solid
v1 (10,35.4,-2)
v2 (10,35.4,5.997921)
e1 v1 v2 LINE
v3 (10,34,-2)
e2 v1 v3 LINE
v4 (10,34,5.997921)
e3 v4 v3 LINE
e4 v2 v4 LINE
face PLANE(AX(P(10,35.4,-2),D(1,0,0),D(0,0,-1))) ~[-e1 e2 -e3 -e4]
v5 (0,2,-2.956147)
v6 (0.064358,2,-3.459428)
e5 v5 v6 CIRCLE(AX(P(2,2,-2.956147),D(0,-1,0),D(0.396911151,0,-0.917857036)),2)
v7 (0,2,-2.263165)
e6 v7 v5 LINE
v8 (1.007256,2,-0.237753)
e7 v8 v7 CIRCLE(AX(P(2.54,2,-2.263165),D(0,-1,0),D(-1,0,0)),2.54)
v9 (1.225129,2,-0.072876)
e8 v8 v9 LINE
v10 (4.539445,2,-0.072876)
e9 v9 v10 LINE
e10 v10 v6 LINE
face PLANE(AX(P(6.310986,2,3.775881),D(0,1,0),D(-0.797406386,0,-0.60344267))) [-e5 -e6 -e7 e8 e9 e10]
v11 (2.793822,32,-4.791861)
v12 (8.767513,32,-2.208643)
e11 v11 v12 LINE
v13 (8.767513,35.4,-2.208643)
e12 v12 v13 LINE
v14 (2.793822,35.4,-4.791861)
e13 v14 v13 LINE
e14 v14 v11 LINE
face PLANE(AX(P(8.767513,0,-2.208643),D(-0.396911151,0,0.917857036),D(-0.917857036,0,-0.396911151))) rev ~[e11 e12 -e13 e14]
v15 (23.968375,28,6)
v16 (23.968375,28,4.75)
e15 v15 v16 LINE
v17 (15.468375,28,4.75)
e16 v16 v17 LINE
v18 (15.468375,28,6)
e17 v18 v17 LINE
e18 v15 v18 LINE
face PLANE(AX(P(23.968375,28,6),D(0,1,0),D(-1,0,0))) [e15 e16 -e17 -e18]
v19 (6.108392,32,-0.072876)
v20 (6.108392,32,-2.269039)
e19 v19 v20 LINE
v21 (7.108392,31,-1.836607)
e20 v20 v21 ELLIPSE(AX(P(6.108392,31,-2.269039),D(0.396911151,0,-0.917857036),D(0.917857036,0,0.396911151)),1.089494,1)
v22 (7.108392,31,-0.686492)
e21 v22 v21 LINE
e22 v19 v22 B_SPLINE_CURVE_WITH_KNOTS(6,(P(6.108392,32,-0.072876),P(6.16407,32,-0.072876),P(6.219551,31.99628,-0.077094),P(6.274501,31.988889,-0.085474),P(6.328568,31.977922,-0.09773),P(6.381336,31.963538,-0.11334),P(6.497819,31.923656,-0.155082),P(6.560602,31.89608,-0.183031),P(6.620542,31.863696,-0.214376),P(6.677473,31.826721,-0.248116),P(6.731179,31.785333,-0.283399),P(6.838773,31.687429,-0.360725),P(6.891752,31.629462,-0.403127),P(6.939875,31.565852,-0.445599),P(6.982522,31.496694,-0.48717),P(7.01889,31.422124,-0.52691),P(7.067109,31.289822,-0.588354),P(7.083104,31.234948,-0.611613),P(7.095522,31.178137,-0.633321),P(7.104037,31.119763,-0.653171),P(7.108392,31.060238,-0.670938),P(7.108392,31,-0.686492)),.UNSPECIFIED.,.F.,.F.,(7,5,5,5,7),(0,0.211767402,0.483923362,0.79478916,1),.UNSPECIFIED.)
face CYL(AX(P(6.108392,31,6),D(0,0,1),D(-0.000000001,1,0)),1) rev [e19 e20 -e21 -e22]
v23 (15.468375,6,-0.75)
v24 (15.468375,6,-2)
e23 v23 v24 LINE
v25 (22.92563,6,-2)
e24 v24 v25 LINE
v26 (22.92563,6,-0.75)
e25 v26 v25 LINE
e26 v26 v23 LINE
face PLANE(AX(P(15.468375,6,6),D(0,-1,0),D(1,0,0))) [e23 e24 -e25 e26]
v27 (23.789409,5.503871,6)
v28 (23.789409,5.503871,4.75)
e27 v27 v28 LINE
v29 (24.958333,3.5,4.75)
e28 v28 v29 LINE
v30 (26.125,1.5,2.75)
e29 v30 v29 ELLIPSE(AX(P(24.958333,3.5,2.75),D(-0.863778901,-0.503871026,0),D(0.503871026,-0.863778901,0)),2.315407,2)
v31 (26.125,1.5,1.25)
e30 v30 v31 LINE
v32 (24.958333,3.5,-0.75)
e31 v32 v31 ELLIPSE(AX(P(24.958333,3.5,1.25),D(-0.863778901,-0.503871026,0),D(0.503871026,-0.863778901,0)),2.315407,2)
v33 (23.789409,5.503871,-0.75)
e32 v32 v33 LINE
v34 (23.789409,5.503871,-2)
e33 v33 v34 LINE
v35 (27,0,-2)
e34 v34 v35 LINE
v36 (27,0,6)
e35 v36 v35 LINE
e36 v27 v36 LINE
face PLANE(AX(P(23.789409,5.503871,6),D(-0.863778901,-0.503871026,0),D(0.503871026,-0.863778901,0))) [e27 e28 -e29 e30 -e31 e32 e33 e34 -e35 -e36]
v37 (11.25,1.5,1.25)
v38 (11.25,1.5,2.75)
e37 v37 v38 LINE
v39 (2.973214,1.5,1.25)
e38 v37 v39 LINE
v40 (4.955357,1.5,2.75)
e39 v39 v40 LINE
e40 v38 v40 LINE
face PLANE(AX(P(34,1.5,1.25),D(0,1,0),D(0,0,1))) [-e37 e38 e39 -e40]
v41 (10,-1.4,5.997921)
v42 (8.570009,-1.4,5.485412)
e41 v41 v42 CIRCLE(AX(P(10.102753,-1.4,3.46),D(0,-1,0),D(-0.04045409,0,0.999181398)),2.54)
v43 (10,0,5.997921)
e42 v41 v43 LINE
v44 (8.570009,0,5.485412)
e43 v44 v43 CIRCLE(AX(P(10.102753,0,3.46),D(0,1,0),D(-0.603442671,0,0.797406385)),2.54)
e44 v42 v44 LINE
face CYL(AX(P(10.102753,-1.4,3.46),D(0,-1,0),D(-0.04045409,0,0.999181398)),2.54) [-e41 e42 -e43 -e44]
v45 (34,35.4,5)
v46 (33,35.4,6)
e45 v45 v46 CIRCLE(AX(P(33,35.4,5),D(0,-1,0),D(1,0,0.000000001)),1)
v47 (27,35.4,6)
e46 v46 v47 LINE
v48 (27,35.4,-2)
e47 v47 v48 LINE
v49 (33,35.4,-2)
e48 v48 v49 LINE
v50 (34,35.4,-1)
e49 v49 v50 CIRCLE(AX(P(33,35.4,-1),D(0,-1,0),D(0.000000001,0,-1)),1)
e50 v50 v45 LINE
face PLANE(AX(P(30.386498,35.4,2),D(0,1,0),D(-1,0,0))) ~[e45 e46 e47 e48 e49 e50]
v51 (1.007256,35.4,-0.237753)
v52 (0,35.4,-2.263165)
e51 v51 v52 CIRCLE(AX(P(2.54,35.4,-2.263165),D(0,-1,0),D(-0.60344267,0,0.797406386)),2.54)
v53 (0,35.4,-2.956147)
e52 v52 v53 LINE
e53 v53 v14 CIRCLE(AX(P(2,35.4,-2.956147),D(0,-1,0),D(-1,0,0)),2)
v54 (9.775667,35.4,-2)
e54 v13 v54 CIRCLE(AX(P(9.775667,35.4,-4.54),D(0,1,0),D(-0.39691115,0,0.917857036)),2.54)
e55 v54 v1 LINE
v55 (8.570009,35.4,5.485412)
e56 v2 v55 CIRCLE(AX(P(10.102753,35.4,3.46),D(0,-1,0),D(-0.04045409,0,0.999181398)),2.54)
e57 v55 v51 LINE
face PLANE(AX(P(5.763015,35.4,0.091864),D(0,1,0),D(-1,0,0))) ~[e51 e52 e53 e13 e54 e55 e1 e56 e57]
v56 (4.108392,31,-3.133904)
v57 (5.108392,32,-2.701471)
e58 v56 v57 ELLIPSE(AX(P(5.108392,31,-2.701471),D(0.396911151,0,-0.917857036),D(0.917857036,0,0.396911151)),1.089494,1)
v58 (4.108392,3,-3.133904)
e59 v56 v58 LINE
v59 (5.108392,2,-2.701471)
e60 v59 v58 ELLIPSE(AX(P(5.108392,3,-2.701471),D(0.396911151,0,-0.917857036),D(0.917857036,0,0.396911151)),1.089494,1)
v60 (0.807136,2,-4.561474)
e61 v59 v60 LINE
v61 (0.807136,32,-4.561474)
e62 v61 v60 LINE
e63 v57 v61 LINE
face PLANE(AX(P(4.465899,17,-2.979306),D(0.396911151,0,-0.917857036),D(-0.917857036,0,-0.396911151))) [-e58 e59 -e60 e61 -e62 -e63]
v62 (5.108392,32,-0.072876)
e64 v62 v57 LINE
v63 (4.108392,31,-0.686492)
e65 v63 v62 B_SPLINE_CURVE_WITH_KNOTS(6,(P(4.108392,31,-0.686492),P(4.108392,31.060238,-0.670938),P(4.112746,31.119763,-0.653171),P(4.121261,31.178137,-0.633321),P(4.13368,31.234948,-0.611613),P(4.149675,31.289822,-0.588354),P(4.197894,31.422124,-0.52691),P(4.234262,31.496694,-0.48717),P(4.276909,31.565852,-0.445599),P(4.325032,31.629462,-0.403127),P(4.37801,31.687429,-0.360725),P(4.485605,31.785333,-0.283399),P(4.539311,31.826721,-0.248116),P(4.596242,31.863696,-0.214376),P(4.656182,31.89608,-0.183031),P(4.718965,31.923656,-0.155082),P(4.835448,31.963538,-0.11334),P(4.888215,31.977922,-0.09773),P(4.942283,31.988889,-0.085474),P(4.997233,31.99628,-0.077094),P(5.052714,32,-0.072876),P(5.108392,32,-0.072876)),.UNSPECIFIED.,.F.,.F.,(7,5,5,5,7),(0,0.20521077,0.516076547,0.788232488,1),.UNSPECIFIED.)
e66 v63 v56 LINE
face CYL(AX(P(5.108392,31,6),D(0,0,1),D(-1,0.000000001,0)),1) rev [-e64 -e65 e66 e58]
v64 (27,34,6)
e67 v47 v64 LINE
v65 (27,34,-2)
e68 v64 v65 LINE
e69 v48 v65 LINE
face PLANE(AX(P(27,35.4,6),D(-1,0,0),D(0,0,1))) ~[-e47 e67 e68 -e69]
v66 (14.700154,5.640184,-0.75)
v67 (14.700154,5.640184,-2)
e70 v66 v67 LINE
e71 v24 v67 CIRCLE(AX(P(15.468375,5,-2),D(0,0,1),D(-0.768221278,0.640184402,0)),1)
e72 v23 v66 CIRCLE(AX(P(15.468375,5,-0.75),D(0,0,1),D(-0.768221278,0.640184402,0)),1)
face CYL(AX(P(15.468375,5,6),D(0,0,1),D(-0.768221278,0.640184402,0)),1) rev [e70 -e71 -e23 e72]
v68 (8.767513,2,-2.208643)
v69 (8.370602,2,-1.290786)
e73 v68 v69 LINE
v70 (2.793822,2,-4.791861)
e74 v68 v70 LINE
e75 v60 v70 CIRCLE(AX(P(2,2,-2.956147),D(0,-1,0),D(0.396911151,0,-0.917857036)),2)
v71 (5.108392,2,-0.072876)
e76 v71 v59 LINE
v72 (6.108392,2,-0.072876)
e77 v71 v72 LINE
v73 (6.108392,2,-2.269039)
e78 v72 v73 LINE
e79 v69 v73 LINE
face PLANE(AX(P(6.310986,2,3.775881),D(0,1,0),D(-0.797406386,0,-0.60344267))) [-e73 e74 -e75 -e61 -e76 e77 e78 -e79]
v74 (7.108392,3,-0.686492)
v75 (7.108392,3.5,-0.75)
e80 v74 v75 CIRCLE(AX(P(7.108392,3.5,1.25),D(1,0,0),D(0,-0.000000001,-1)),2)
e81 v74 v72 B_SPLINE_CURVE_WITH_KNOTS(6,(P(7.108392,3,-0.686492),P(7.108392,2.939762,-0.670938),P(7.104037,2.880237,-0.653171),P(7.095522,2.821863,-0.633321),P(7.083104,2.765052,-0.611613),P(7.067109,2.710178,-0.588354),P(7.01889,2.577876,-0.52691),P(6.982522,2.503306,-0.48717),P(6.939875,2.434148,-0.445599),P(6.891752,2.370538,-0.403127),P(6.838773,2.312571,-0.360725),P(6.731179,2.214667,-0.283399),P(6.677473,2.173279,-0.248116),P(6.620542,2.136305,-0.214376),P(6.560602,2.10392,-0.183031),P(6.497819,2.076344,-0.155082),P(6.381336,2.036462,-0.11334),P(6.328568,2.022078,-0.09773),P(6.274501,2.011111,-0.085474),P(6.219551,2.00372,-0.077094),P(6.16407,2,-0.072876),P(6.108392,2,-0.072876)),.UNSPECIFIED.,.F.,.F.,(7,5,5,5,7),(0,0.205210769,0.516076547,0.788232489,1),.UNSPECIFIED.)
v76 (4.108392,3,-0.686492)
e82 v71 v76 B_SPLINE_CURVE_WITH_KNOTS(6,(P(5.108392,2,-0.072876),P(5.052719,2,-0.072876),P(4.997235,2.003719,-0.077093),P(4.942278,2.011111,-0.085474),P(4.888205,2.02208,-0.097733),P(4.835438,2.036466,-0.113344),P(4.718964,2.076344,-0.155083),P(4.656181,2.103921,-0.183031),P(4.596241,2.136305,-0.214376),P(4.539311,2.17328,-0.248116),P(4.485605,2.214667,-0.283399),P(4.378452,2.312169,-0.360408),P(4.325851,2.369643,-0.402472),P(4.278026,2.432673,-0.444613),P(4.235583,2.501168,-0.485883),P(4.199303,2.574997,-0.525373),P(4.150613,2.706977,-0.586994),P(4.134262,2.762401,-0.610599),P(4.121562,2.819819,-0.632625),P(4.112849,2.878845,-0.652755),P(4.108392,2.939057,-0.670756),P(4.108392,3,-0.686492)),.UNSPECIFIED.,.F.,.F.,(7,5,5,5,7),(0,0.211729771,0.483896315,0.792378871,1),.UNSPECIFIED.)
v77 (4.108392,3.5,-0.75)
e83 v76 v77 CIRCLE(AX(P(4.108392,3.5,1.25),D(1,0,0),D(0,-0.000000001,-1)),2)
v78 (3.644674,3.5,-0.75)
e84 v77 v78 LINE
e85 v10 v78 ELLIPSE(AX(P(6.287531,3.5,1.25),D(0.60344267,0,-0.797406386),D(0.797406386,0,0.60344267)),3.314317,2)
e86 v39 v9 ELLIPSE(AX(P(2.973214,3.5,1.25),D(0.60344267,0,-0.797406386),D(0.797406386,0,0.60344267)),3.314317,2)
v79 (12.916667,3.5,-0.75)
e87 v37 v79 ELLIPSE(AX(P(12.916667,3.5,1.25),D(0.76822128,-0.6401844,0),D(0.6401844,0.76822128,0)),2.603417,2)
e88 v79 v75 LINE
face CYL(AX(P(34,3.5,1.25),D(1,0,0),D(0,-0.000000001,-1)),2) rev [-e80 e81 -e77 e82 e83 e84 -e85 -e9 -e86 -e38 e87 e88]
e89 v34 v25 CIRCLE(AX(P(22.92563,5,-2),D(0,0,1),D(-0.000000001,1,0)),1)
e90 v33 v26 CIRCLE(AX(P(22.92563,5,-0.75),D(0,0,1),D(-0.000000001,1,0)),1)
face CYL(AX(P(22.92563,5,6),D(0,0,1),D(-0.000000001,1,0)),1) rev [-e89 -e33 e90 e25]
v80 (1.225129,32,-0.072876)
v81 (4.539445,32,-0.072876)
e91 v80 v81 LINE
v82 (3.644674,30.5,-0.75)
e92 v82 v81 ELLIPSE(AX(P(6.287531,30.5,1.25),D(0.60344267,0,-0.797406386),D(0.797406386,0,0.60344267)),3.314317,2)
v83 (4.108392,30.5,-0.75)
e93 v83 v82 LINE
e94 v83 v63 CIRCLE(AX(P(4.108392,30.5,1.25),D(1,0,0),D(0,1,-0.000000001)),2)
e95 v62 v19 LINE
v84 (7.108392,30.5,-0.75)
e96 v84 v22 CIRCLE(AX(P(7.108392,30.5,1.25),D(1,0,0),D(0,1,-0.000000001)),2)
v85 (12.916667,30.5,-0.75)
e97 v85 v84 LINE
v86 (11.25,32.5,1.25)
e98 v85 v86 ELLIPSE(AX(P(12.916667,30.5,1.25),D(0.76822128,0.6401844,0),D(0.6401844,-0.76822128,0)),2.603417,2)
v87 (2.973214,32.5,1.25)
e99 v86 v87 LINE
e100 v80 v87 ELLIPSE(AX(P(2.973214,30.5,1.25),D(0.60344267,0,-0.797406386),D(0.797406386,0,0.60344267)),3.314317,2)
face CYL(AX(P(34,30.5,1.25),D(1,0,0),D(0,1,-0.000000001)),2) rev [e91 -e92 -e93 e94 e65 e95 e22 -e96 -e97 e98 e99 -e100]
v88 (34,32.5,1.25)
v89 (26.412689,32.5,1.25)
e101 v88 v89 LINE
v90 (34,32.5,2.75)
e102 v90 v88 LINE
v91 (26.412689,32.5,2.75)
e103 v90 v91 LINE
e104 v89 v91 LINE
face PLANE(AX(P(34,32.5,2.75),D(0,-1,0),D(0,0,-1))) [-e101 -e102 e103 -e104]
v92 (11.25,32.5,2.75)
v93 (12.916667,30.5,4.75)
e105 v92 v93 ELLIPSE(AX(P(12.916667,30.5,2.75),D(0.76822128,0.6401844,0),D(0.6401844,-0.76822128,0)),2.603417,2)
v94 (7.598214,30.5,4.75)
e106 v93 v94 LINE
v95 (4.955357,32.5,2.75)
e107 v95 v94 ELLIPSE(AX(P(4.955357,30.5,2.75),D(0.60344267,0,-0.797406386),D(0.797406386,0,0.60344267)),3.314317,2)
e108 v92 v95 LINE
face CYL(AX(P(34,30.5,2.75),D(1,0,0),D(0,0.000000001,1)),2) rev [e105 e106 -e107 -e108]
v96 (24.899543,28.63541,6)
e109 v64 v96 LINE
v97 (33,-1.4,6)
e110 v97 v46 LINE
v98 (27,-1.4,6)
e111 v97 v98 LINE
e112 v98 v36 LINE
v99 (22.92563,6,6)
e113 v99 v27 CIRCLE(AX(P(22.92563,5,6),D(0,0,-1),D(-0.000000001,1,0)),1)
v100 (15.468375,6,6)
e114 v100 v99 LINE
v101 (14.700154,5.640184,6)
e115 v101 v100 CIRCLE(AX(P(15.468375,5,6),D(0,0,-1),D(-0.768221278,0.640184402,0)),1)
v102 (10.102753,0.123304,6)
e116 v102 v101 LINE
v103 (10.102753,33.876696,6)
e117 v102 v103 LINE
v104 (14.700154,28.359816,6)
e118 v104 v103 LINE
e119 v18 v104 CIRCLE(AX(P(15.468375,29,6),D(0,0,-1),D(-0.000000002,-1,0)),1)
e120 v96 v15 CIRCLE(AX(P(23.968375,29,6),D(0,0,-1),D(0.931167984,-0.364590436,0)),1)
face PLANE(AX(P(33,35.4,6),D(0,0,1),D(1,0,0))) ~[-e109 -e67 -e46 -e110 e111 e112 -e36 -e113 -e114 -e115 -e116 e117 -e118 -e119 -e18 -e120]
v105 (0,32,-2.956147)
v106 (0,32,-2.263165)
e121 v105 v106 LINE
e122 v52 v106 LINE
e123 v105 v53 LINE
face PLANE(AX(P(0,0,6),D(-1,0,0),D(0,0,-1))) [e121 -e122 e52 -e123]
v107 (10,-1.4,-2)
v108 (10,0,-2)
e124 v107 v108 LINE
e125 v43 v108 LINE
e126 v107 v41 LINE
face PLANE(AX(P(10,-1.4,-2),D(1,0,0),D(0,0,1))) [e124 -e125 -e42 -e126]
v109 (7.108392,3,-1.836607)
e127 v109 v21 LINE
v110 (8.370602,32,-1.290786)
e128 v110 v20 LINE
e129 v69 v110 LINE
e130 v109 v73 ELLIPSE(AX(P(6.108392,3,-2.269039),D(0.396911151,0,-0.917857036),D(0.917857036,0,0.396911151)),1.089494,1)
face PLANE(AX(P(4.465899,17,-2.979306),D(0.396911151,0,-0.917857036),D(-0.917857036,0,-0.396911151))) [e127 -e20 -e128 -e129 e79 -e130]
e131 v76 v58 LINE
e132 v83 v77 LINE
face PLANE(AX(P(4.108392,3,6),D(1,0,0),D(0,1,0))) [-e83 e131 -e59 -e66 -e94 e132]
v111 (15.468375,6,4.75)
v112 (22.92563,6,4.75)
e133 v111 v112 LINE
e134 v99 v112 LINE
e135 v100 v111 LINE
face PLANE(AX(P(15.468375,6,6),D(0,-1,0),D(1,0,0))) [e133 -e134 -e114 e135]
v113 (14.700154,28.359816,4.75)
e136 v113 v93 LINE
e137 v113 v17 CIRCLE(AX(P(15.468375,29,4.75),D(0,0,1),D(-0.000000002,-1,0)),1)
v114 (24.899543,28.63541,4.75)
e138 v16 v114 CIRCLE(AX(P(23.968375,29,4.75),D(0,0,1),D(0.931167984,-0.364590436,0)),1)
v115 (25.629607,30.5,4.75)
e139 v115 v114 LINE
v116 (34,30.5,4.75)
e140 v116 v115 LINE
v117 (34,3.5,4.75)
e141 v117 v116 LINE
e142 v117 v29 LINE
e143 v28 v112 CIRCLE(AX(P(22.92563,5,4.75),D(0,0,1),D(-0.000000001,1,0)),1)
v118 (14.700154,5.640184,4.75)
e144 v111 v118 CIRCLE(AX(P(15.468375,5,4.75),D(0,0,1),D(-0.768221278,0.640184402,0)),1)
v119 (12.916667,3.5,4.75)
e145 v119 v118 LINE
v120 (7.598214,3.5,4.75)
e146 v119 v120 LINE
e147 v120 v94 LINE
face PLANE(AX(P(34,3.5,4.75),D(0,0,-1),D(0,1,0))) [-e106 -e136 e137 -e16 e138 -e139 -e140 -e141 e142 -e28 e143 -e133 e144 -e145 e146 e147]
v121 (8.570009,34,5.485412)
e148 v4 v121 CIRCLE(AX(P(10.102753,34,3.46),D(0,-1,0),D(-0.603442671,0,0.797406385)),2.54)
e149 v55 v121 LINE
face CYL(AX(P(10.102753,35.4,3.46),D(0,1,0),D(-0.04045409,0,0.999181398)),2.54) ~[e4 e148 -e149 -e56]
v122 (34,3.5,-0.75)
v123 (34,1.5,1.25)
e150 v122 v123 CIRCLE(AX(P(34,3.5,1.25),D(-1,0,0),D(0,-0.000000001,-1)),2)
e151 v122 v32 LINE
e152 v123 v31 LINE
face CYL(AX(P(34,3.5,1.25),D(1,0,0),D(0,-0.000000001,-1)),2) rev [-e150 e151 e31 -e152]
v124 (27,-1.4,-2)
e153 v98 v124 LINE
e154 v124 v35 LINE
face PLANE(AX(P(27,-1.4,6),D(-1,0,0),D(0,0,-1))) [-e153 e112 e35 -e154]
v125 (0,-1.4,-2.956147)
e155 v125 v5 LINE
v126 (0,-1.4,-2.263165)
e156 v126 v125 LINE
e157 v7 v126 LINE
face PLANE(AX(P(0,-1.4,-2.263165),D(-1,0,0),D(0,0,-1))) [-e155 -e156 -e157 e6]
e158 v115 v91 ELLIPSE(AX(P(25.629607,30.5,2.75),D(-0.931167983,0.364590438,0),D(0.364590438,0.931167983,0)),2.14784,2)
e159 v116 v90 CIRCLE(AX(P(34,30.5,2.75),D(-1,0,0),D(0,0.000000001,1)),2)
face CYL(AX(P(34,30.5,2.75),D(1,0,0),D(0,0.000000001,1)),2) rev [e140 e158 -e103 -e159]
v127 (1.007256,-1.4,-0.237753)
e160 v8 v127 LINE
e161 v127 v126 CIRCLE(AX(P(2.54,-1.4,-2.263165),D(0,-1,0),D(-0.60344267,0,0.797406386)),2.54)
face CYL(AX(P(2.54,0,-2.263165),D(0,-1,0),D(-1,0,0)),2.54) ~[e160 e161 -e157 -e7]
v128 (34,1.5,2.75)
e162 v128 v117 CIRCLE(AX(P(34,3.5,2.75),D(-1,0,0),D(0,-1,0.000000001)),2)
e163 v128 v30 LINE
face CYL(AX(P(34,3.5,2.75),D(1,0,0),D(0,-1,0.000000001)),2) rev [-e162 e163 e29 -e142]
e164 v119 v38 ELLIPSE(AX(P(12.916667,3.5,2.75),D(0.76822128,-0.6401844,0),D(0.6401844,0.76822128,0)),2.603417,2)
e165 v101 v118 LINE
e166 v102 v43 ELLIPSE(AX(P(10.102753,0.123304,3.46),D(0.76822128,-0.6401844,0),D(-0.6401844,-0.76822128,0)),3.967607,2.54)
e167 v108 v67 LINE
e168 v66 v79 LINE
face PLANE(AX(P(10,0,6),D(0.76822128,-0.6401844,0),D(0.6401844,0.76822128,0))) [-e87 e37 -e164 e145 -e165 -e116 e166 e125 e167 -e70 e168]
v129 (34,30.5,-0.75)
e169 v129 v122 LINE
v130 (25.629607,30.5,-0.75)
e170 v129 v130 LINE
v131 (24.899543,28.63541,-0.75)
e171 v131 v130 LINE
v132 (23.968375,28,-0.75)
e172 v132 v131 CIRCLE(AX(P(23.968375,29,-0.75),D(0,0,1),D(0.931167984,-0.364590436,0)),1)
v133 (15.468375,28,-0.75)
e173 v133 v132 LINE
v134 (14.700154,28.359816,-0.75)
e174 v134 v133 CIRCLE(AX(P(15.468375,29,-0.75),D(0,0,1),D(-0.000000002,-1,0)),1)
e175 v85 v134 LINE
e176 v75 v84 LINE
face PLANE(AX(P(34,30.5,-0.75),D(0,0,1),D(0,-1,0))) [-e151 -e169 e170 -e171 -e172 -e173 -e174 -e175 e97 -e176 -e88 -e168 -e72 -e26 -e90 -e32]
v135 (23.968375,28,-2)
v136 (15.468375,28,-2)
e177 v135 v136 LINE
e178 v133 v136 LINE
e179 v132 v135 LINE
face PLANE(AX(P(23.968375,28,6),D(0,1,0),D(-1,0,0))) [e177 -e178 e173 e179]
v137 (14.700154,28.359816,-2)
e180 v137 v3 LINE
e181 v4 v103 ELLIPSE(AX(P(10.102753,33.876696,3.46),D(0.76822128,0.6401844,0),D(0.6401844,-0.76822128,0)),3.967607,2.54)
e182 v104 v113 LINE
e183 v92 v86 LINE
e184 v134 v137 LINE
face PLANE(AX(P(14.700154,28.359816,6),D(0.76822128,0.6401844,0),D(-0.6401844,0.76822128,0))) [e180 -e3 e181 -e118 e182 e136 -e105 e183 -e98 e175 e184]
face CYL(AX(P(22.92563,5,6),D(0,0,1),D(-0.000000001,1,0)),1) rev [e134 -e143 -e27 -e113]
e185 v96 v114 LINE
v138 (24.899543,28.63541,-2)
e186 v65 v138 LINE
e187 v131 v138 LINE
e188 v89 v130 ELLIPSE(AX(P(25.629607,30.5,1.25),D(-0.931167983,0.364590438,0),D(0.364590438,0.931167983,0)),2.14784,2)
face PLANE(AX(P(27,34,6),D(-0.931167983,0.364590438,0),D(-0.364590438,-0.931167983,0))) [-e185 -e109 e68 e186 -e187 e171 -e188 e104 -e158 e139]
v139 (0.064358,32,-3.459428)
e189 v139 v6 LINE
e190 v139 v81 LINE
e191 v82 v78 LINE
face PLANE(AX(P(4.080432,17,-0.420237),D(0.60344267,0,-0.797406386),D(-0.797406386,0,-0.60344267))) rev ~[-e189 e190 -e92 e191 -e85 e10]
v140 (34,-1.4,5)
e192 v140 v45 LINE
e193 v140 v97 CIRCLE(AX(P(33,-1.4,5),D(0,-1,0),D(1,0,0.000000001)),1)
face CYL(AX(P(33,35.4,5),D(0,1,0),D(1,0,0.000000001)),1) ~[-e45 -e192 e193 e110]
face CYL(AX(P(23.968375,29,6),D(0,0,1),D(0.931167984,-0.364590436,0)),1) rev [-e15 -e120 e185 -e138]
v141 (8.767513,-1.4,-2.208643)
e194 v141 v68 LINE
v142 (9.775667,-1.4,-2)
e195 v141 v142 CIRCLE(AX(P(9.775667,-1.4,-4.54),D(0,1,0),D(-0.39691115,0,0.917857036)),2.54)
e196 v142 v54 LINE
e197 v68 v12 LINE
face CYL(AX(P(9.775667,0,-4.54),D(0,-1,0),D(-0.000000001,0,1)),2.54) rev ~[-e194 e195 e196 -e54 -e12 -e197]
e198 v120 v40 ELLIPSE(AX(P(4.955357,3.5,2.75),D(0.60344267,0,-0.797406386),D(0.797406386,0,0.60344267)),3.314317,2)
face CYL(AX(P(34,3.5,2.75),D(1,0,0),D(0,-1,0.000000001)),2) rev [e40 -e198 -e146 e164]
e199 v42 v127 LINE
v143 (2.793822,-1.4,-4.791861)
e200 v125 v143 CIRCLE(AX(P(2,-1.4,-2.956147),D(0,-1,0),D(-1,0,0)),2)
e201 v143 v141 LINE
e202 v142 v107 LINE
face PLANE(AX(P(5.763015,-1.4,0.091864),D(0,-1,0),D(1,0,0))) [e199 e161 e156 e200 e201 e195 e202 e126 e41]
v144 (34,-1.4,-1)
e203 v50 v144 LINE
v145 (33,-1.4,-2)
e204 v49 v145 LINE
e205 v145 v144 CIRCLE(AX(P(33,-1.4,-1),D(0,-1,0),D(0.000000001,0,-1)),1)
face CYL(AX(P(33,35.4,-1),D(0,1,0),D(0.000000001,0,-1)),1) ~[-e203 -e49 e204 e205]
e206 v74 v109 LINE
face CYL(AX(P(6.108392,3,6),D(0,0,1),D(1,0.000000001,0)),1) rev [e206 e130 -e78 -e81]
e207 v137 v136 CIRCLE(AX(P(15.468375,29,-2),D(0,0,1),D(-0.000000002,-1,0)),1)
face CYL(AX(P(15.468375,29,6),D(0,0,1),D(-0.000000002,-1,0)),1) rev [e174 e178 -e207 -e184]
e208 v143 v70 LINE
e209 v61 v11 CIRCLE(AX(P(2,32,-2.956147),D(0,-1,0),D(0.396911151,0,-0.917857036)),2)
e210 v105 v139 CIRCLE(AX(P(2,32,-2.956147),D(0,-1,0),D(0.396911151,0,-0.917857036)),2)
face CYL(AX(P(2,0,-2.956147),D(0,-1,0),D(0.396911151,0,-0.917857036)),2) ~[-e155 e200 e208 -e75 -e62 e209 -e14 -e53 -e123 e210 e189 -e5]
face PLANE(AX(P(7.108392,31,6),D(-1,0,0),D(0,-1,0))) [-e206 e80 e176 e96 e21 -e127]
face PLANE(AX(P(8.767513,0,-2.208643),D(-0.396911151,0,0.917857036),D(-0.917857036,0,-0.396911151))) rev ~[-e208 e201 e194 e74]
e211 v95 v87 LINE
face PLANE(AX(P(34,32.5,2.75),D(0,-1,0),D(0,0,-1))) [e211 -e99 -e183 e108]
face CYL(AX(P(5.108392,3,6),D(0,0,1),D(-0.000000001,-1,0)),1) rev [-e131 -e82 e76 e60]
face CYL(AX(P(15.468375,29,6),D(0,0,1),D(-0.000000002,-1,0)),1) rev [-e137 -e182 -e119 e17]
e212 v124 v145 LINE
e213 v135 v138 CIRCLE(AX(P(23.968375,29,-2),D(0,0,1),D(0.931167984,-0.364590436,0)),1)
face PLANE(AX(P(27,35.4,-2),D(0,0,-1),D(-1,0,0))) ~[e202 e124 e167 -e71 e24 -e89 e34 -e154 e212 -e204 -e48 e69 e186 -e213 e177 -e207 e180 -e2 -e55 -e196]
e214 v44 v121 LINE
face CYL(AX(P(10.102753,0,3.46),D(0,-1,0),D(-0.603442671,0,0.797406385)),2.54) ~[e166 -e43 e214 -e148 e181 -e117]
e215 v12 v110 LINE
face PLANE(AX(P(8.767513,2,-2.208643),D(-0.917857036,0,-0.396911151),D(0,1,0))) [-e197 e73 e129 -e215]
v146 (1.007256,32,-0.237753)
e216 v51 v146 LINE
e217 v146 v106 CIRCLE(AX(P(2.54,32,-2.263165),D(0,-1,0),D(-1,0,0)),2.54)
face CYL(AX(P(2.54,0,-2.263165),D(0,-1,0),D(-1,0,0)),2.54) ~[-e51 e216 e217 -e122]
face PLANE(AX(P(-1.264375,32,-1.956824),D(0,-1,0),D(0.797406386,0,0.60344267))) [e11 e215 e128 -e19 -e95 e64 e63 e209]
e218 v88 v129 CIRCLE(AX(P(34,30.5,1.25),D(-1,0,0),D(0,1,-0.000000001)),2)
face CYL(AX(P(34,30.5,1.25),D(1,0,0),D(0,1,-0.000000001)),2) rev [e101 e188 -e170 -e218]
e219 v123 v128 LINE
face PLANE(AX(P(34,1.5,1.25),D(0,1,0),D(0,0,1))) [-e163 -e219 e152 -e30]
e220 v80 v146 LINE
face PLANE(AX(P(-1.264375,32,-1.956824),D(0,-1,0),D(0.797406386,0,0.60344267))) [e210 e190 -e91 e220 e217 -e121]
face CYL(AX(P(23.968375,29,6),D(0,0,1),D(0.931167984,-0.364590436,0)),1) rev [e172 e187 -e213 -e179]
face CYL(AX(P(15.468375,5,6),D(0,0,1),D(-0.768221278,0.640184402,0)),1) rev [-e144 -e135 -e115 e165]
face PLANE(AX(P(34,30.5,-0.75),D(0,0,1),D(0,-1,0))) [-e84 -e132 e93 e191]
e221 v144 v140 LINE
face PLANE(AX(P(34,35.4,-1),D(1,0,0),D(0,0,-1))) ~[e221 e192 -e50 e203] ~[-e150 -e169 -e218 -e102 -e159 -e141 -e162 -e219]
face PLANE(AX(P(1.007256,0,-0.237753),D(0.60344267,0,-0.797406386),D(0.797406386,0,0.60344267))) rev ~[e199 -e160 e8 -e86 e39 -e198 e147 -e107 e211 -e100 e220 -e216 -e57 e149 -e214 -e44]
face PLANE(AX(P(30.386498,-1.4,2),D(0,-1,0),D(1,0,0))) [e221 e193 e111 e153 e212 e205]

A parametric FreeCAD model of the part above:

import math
import FreeCAD as App
import Part
import Sketcher
from FreeCAD import Vector
Q = App.Units.Quantity

doc = App.newDocument("Part")
body = doc.addObject("PartDesign::Body", "Body")

sketch1 = body.newObject("Sketcher::SketchObject", "Sketch")
sketch1.AttachmentSupport = (doc.getObject("XZ_Plane"), [""])
sketch1.MapMode = "FlatFace"
sketch1.addGeometry([
    Part.LineSegment(Vector(0, -6, 0), Vector(0, 6, 0)),
    Part.LineSegment(Vector(0, 6, 0), Vector(34, 6, 0)),
    Part.LineSegment(Vector(34, 6, 0), Vector(34, -6, 0)),
    Part.LineSegment(Vector(34, -6, 0), Vector(0, -6, 0)),
], False)
sketch1.addConstraint([
    Sketcher.Constraint("Coincident", 0, 2, 1, 1),
    Sketcher.Constraint("Coincident", 1, 2, 2, 1),
    Sketcher.Constraint("Coincident", 2, 2, 3, 1),
    Sketcher.Constraint("Coincident", 3, 2, 0, 1),
    Sketcher.Constraint("Vertical", 0),
    Sketcher.Constraint("Horizontal", 1),
    Sketcher.Constraint("Vertical", 2),
    Sketcher.Constraint("Horizontal", 3),
    Sketcher.Constraint("Symmetric", 0, 2, 3, 2, -1, 1),
    Sketcher.Constraint("DistanceX", 1, 1, 1, 2, Q("34 mm")),
    Sketcher.Constraint("DistanceY", 0, 1, 0, 2, Q("12 mm")),
])
pad1 = body.newObject("PartDesign::Pad", "Pad")
pad1.Profile = sketch1
pad1.Length = 34
pad1.Reversed = True

sketch2 = body.newObject("Sketcher::SketchObject", "Sketch001")
sketch2.AttachmentSupport = (doc.getObject("XZ_Plane"), [""])
sketch2.MapMode = "FlatFace"
sketch2.addGeometry([
    Part.LineSegment(Vector(10.8, -9.6, 0), Vector(33, -9.6, 0)),
    Part.ArcOfCircle(Part.Circle(Vector(33, -1, 0), Vector(0, 0, 1), 8.6), math.radians(-90), math.radians(0)),
    Part.LineSegment(Vector(41.6, -1, 0), Vector(41.6, 5, 0)),
    Part.ArcOfCircle(Part.Circle(Vector(33, 5, 0), Vector(0, 0, 1), 8.6), math.radians(0), math.radians(90)),
    Part.LineSegment(Vector(33, 13.6, 0), Vector(10.1, 13.6, 0)),
    Part.ArcOfCircle(Part.Circle(Vector(10.1, 3.5, 0), Vector(0, 0, 1), 10.2), math.radians(90), math.radians(127)),
    Part.LineSegment(Vector(4, 11.6, 0), Vector(-3.6, 5.8, 0)),
    Part.ArcOfCircle(Part.Circle(Vector(2.5, -2.3, 0), Vector(0, 0, 1), 10.2), math.radians(127), math.radians(180)),
    Part.LineSegment(Vector(-7.6, -2.3, 0), Vector(-7.6, -3, 0)),
    Part.ArcOfCircle(Part.Circle(Vector(2, -3, 0), Vector(0, 0, 1), 9.6), math.radians(180), math.radians(293)),
    Part.LineSegment(Vector(5.8, -11.8, 0), Vector(10.8, -9.6, 0)),
    Part.LineSegment(Vector(33, -2, 0), Vector(9.8, -2, 0)),
    Part.ArcOfCircle(Part.Circle(Vector(9.8, -4.5, 0), Vector(0, 0, 1), 2.5), math.radians(90), math.radians(113)),
    Part.LineSegment(Vector(8.8, -2.2, 0), Vector(2.8, -4.8, 0)),
    Part.ArcOfCircle(Part.Circle(Vector(2, -3, 0), Vector(0, 0, 1), 2), math.radians(180), math.radians(293)),
    Part.LineSegment(Vector(0, -3, 0), Vector(0, -2.3, 0)),
    Part.ArcOfCircle(Part.Circle(Vector(2.5, -2.3, 0), Vector(0, 0, 1), 2.5), math.radians(127), math.radians(180)),
    Part.LineSegment(Vector(1, -0.2, 0), Vector(8.6, 5.5, 0)),
    Part.ArcOfCircle(Part.Circle(Vector(10.1, 3.5, 0), Vector(0, 0, 1), 2.5), math.radians(90), math.radians(127)),
    Part.LineSegment(Vector(10.1, 6, 0), Vector(33, 6, 0)),
    Part.ArcOfCircle(Part.Circle(Vector(33, 5, 0), Vector(0, 0, 1), 1), math.radians(0), math.radians(90)),
    Part.LineSegment(Vector(34, 5, 0), Vector(34, -1, 0)),
    Part.ArcOfCircle(Part.Circle(Vector(33, -1, 0), Vector(0, 0, 1), 1), math.radians(-90), math.radians(0)),
], False)
sketch2.addConstraint([
    Sketcher.Constraint("Tangent", 0, 2, 1, 1),
    Sketcher.Constraint("Tangent", 1, 2, 2, 1),
    Sketcher.Constraint("Tangent", 2, 2, 3, 1),
    Sketcher.Constraint("Tangent", 3, 2, 4, 1),
    Sketcher.Constraint("Tangent", 4, 2, 5, 1),
    Sketcher.Constraint("Tangent", 5, 2, 6, 1),
    Sketcher.Constraint("Tangent", 6, 2, 7, 1),
    Sketcher.Constraint("Tangent", 7, 2, 8, 1),
    Sketcher.Constraint("Tangent", 8, 2, 9, 1),
    Sketcher.Constraint("Tangent", 9, 2, 10, 1),
    Sketcher.Constraint("Coincident", 10, 2, 0, 1),
    Sketcher.Constraint("Tangent", 11, 2, 12, 1),
    Sketcher.Constraint("Tangent", 12, 2, 13, 1),
    Sketcher.Constraint("Tangent", 13, 2, 14, 2),
    Sketcher.Constraint("Tangent", 14, 1, 15, 1),
    Sketcher.Constraint("Tangent", 15, 2, 16, 2),
    Sketcher.Constraint("Tangent", 16, 1, 17, 1),
    Sketcher.Constraint("Tangent", 17, 2, 18, 2),
    Sketcher.Constraint("Tangent", 18, 1, 19, 1),
    Sketcher.Constraint("Tangent", 19, 2, 20, 2),
    Sketcher.Constraint("Tangent", 20, 1, 21, 1),
    Sketcher.Constraint("Tangent", 21, 2, 22, 2),
    Sketcher.Constraint("Tangent", 22, 1, 11, 1),
    Sketcher.Constraint("Horizontal", 0),
    Sketcher.Constraint("Vertical", 2),
    Sketcher.Constraint("Horizontal", 4),
    Sketcher.Constraint("Vertical", 8),
    Sketcher.Constraint("Horizontal", 11),
    Sketcher.Constraint("Vertical", 15),
    Sketcher.Constraint("Horizontal", 19),
    Sketcher.Constraint("Vertical", 21),
    Sketcher.Constraint("Coincident", 14, 3, 9, 3),
    Sketcher.Constraint("Coincident", 16, 3, 7, 3),
    Sketcher.Constraint("Coincident", 18, 3, 5, 3),
    Sketcher.Constraint("Coincident", 20, 3, 3, 3),
    Sketcher.Constraint("Coincident", 22, 3, 1, 3),
    Sketcher.Constraint("Equal", 1, 3),
    Sketcher.Constraint("Equal", 5, 7),
    Sketcher.Constraint("Equal", 12, 16),
    Sketcher.Constraint("Equal", 16, 18),
    Sketcher.Constraint("PointOnObject", 14, 1, -2),
    Sketcher.Constraint("Parallel", 10, 13),
    Sketcher.Constraint("Radius", 14, Q("2 mm")),
    Sketcher.Constraint("Radius", 20, Q("1 mm")),
    Sketcher.Constraint("DistanceY", 2, 1, 2, 2, Q("6 mm")),
    Sketcher.Constraint("Radius", 1, Q("8.62 mm")),
    Sketcher.Constraint("Radius", 5, Q("10.16 mm")),
    Sketcher.Constraint("DistanceX", -1, 1, 1, 3, Q("33 mm")),
    Sketcher.Constraint("DistanceY", 1, 3, -1, 1, Q("1 mm")),
    Sketcher.Constraint("DistanceX", 0, 1, 0, 2, Q("22.172999 mm")),
    Sketcher.Constraint("Distance", 13, Q("6.508302 mm")),
    Sketcher.Constraint("DistanceY", 8, 2, 8, 1, Q("0.692982 mm")),
    Sketcher.Constraint("Distance", 6, Q("9.48419 mm")),
])
pocket1 = body.newObject("PartDesign::Pocket", "Pocket")
pocket1.Profile = sketch2
pocket1.Type = "ThroughAll"

sketch3 = body.newObject("Sketcher::SketchObject", "Sketch002")
sketch3.Placement = App.Placement(Vector(0.481189, 0, -0.635857), App.Rotation(Vector(0.797406386, 0, 0.60344267), Vector(0, 1, 0), Vector(-0.60344267, 0, 0.797406386), "ZXY"))
sketch3.addGeometry([
    Part.LineSegment(Vector(7.3, 32, 0), Vector(-2.2, 32, 0)),
    Part.LineSegment(Vector(-2.2, 32, 0), Vector(-2.2, 2, 0)),
    Part.LineSegment(Vector(-2.2, 2, 0), Vector(7.3, 2, 0)),
    Part.ArcOfCircle(Part.Circle(Vector(7.3, 3, 0), Vector(0, 0, 1), 1), math.radians(-90), math.radians(0)),
    Part.LineSegment(Vector(8.3, 3, 0), Vector(8.3, 31, 0)),
    Part.ArcOfCircle(Part.Circle(Vector(7.3, 31, 0), Vector(0, 0, 1), 1), math.radians(0), math.radians(90)),
], False)
sketch3.addConstraint([
    Sketcher.Constraint("Coincident", 0, 2, 1, 1),
    Sketcher.Constraint("Coincident", 1, 2, 2, 1),
    Sketcher.Constraint("Tangent", 2, 2, 3, 1),
    Sketcher.Constraint("Tangent", 3, 2, 4, 1),
    Sketcher.Constraint("Tangent", 4, 2, 5, 1),
    Sketcher.Constraint("Tangent", 5, 2, 0, 1),
    Sketcher.Constraint("Horizontal", 0),
    Sketcher.Constraint("Vertical", 1),
    Sketcher.Constraint("Horizontal", 2),
    Sketcher.Constraint("Vertical", 4),
    Sketcher.Constraint("Equal", 3, 5),
    Sketcher.Constraint("Radius", 3, Q("1 mm")),
    Sketcher.Constraint("DistanceY", 1, 2, 1, 1, Q("30 mm")),
    Sketcher.Constraint("DistanceX", 0, 2, 0, 1, Q("9.5 mm")),
    Sketcher.Constraint("DistanceY", -1, 1, 3, 3, Q("3 mm")),
    Sketcher.Constraint("DistanceX", -1, 1, 3, 3, Q("7.310948 mm")),
])
pocket2 = body.newObject("PartDesign::Pocket", "Pocket001")
pocket2.Profile = sketch3
pocket2.Length = 2

sketch4 = body.newObject("Sketcher::SketchObject", "Sketch003")
sketch4.Placement = App.Placement(Vector(2.185846, 0, -5.054769), App.Rotation(Vector(-0.917857036, 0, -0.396911151), Vector(0, 1, 0), Vector(0.396911151, 0, -0.917857036), "ZXY"))
sketch4.addGeometry([
    Part.LineSegment(Vector(-7, 32, 0), Vector(-7, 2, 0)),
    Part.LineSegment(Vector(-7, 2, 0), Vector(1, 2, 0)),
    Part.LineSegment(Vector(1, 2, 0), Vector(1, 32, 0)),
    Part.LineSegment(Vector(1, 32, 0), Vector(-7, 32, 0)),
], False)
sketch4.addConstraint([
    Sketcher.Constraint("Coincident", 0, 2, 1, 1),
    Sketcher.Constraint("Coincident", 1, 2, 2, 1),
    Sketcher.Constraint("Coincident", 2, 2, 3, 1),
    Sketcher.Constraint("Coincident", 3, 2, 0, 1),
    Sketcher.Constraint("Vertical", 0),
    Sketcher.Constraint("Horizontal", 1),
    Sketcher.Constraint("Vertical", 2),
    Sketcher.Constraint("Horizontal", 3),
    Sketcher.Constraint("DistanceY", 0, 2, 0, 1, Q("30 mm")),
    Sketcher.Constraint("DistanceY", -1, 1, 0, 2, Q("2 mm")),
    Sketcher.Constraint("DistanceX", 1, 1, 1, 2, Q("8.508302 mm")),
    Sketcher.Constraint("DistanceX", 0, 2, -1, 1, Q("7.170688 mm")),
])
pocket3 = body.newObject("PartDesign::Pocket", "Pocket002")
pocket3.Profile = sketch4
pocket3.Length = 1

sketch5 = body.newObject("Sketcher::SketchObject", "Sketch004")
sketch5.AttachmentSupport = (doc.getObject("XY_Plane"), [""])
sketch5.MapMode = "FlatFace"
sketch5.AttachmentOffset = App.Placement(Vector(0, 0, 6), App.Rotation())
sketch5.addGeometry([
    Part.LineSegment(Vector(6.1, 32, 0), Vector(5.1, 32, 0)),
    Part.ArcOfCircle(Part.Circle(Vector(5.1, 31, 0), Vector(0, 0, 1), 1), math.radians(90), math.radians(180)),
    Part.LineSegment(Vector(4.1, 31, 0), Vector(4.1, 3, 0)),
    Part.ArcOfCircle(Part.Circle(Vector(5.1, 3, 0), Vector(0, 0, 1), 1), math.radians(-180), math.radians(-90)),
    Part.LineSegment(Vector(5.1, 2, 0), Vector(6.1, 2, 0)),
    Part.ArcOfCircle(Part.Circle(Vector(6.1, 3, 0), Vector(0, 0, 1), 1), math.radians(-90), math.radians(0)),
    Part.LineSegment(Vector(7.1, 3, 0), Vector(7.1, 31, 0)),
    Part.ArcOfCircle(Part.Circle(Vector(6.1, 31, 0), Vector(0, 0, 1), 1), math.radians(0), math.radians(90)),
    Part.LineSegment(Vector(27, 34, 0), Vector(10, 34, 0)),
    Part.LineSegment(Vector(10, 34, 0), Vector(14.7, 28.4, 0)),
    Part.ArcOfCircle(Part.Circle(Vector(15.5, 29, 0), Vector(0, 0, 1), 1), math.radians(-140), math.radians(-90)),
    Part.LineSegment(Vector(15.5, 28, 0), Vector(24, 28, 0)),
    Part.ArcOfCircle(Part.Circle(Vector(24, 29, 0), Vector(0, 0, 1), 1), math.radians(-90), math.radians(-21)),
    Part.LineSegment(Vector(24.9, 28.6, 0), Vector(27, 34, 0)),
    Part.LineSegment(Vector(14.7, 5.6, 0), Vector(10, 0, 0)),
    Part.LineSegment(Vector(10, 0, 0), Vector(27, 0, 0)),
    Part.LineSegment(Vector(27, 0, 0), Vector(23.8, 5.5, 0)),
    Part.ArcOfCircle(Part.Circle(Vector(22.9, 5, 0), Vector(0, 0, 1), 1), math.radians(30), math.radians(90)),
    Part.LineSegment(Vector(22.9, 6, 0), Vector(15.5, 6, 0)),
    Part.ArcOfCircle(Part.Circle(Vector(15.5, 5, 0), Vector(0, 0, 1), 1), math.radians(90), math.radians(140)),
], False)
sketch5.addConstraint([
    Sketcher.Constraint("Tangent", 0, 2, 1, 1),
    Sketcher.Constraint("Tangent", 1, 2, 2, 1),
    Sketcher.Constraint("Tangent", 2, 2, 3, 1),
    Sketcher.Constraint("Tangent", 3, 2, 4, 1),
    Sketcher.Constraint("Tangent", 4, 2, 5, 1),
    Sketcher.Constraint("Tangent", 5, 2, 6, 1),
    Sketcher.Constraint("Tangent", 6, 2, 7, 1),
    Sketcher.Constraint("Tangent", 7, 2, 0, 1),
    Sketcher.Constraint("Coincident", 8, 2, 9, 1),
    Sketcher.Constraint("Tangent", 9, 2, 10, 1),
    Sketcher.Constraint("Tangent", 10, 2, 11, 1),
    Sketcher.Constraint("Tangent", 11, 2, 12, 1),
    Sketcher.Constraint("Tangent", 12, 2, 13, 1),
    Sketcher.Constraint("Coincident", 13, 2, 8, 1),
    Sketcher.Constraint("Coincident", 14, 2, 15, 1),
    Sketcher.Constraint("Coincident", 15, 2, 16, 1),
    Sketcher.Constraint("Tangent", 16, 2, 17, 1),
    Sketcher.Constraint("Tangent", 17, 2, 18, 1),
    Sketcher.Constraint("Tangent", 18, 2, 19, 1),
    Sketcher.Constraint("Tangent", 19, 2, 14, 1),
    Sketcher.Constraint("Horizontal", 0),
    Sketcher.Constraint("Vertical", 2),
    Sketcher.Constraint("Horizontal", 4),
    Sketcher.Constraint("Vertical", 6),
    Sketcher.Constraint("Horizontal", 8),
    Sketcher.Constraint("Horizontal", 11),
    Sketcher.Constraint("Horizontal", 15),
    Sketcher.Constraint("Horizontal", 18),
    Sketcher.Constraint("Equal", 1, 3),
    Sketcher.Constraint("Equal", 3, 5),
    Sketcher.Constraint("Equal", 5, 7),
    Sketcher.Constraint("Equal", 7, 10),
    Sketcher.Constraint("Equal", 10, 12),
    Sketcher.Constraint("Equal", 12, 17),
    Sketcher.Constraint("Equal", 17, 19),
    Sketcher.Constraint("PointOnObject", 14, 2, -1),
    Sketcher.Constraint("Vertical", 10, 3, 19, 3),
    Sketcher.Constraint("Vertical", 8, 2, 14, 2),
    Sketcher.Constraint("Vertical", 13, 2, 15, 2),
    Sketcher.Constraint("Vertical", 9, 2, 19, 2),
    Sketcher.Constraint("Radius", 1, Q("1 mm")),
    Sketcher.Constraint("DistanceX", 0, 2, 0, 1, Q("1 mm")),
    Sketcher.Constraint("DistanceX", 8, 2, 8, 1, Q("17 mm")),
    Sketcher.Constraint("DistanceY", 2, 2, 2, 1, Q("28 mm")),
    Sketcher.Constraint("DistanceX", 11, 1, 11, 2, Q("8.5 mm")),
    Sketcher.Constraint("DistanceY", -1, 1, 1, 3, Q("31 mm")),
    Sketcher.Constraint("DistanceY", -1, 1, 10, 3, Q("29 mm")),
    Sketcher.Constraint("DistanceY", -1, 1, 17, 3, Q("5 mm")),
    Sketcher.Constraint("DistanceX", -1, 1, 8, 2, Q("10 mm")),
    Sketcher.Constraint("Distance", 13, Q("5.761141 mm")),
    Sketcher.Constraint("Distance", 16, Q("6.371852 mm")),
    Sketcher.Constraint("DistanceX", -1, 1, 1, 3, Q("5.108392 mm")),
])
pocket4 = body.newObject("PartDesign::Pocket", "Pocket003")
pocket4.Profile = sketch5
pocket4.Type = "ThroughAll"

sketch6 = body.newObject("Sketcher::SketchObject", "Sketch005")
sketch6.AttachmentSupport = (doc.getObject("YZ_Plane"), [""])
sketch6.MapMode = "FlatFace"
sketch6.AttachmentOffset = App.Placement(Vector(0, 0, 34), App.Rotation())
sketch6.addGeometry([
    Part.LineSegment(Vector(32.5, 1.2, 0), Vector(32.5, 2.8, 0)),
    Part.ArcOfCircle(Part.Circle(Vector(30.5, 2.7, 0), Vector(0, 0, 1), 2), math.radians(0), math.radians(90)),
    Part.LineSegment(Vector(30.5, 4.8, 0), Vector(3.5, 4.8, 0)),
    Part.ArcOfCircle(Part.Circle(Vector(3.5, 2.7, 0), Vector(0, 0, 1), 2), math.radians(90), math.radians(180)),
    Part.LineSegment(Vector(1.5, 2.8, 0), Vector(1.5, 1.2, 0)),
    Part.ArcOfCircle(Part.Circle(Vector(3.5, 1.3, 0), Vector(0, 0, 1), 2), math.radians(-180), math.radians(-90)),
    Part.LineSegment(Vector(3.5, -0.8, 0), Vector(30.5, -0.8, 0)),
    Part.ArcOfCircle(Part.Circle(Vector(30.5, 1.3, 0), Vector(0, 0, 1), 2), math.radians(-90), math.radians(0)),
], False)
sketch6.addConstraint([
    Sketcher.Constraint("Tangent", 0, 2, 1, 1),
    Sketcher.Constraint("Tangent", 1, 2, 2, 1),
    Sketcher.Constraint("Tangent", 2, 2, 3, 1),
    Sketcher.Constraint("Tangent", 3, 2, 4, 1),
    Sketcher.Constraint("Tangent", 4, 2, 5, 1),
    Sketcher.Constraint("Tangent", 5, 2, 6, 1),
    Sketcher.Constraint("Tangent", 6, 2, 7, 1),
    Sketcher.Constraint("Tangent", 7, 2, 0, 1),
    Sketcher.Constraint("Vertical", 0),
    Sketcher.Constraint("Horizontal", 2),
    Sketcher.Constraint("Vertical", 4),
    Sketcher.Constraint("Horizontal", 6),
    Sketcher.Constraint("Equal", 1, 3),
    Sketcher.Constraint("Equal", 3, 5),
    Sketcher.Constraint("Equal", 5, 7),
    Sketcher.Constraint("Radius", 1, Q("2 mm")),
    Sketcher.Constraint("DistanceX", 2, 2, 2, 1, Q("27 mm")),
    Sketcher.Constraint("DistanceY", 0, 1, 0, 2, Q("1.5 mm")),
    Sketcher.Constraint("DistanceX", -1, 1, 1, 3, Q("30.5 mm")),
    Sketcher.Constraint("DistanceY", -1, 1, 1, 3, Q("2.75 mm")),
])
pocket5 = body.newObject("PartDesign::Pocket", "Pocket004")
pocket5.Profile = sketch6
pocket5.Type = "ThroughAll"

sketch7 = body.newObject("Sketcher::SketchObject", "Sketch006")
sketch7.AttachmentSupport = (doc.getObject("XZ_Plane"), [""])
sketch7.MapMode = "FlatFace"
sketch7.AttachmentOffset = App.Placement(Vector(0, 0, 1.4), App.Rotation())
sketch7.addGeometry([
    Part.LineSegment(Vector(27, 6, 0), Vector(27, -2, 0)),
    Part.LineSegment(Vector(27, -2, 0), Vector(33, -2, 0)),
    Part.ArcOfCircle(Part.Circle(Vector(33, -1, 0), Vector(0, 0, 1), 1), math.radians(-90), math.radians(0)),
    Part.LineSegment(Vector(34, -1, 0), Vector(34, 5, 0)),
    Part.ArcOfCircle(Part.Circle(Vector(33, 5, 0), Vector(0, 0, 1), 1), math.radians(0), math.radians(90)),
    Part.LineSegment(Vector(33, 6, 0), Vector(27, 6, 0)),
    Part.LineSegment(Vector(10, -2, 0), Vector(10, 6, 0)),
    Part.ArcOfCircle(Part.Circle(Vector(10.1, 3.46, 0), Vector(0, 0, 1), 2.54), math.radians(92), math.radians(127)),
    Part.LineSegment(Vector(8.57, 5.49, 0), Vector(1.01, -0.24, 0)),
    Part.ArcOfCircle(Part.Circle(Vector(2.54, -2.26, 0), Vector(0, 0, 1), 2.54), math.radians(127), math.radians(180)),
    Part.LineSegment(Vector(0, -2.26, 0), Vector(0, -2.96, 0)),
    Part.ArcOfCircle(Part.Circle(Vector(2, -2.96, 0), Vector(0, 0, 1), 2), math.radians(180), math.radians(293)),
    Part.LineSegment(Vector(2.79, -4.79, 0), Vector(8.77, -2.21, 0)),
    Part.ArcOfCircle(Part.Circle(Vector(9.78, -4.54, 0), Vector(0, 0, 1), 2.54), math.radians(90), math.radians(113)),
    Part.LineSegment(Vector(9.78, -2, 0), Vector(10, -2, 0)),
], False)
sketch7.addConstraint([
    Sketcher.Constraint("Coincident", 0, 2, 1, 1),
    Sketcher.Constraint("Tangent", 1, 2, 2, 1),
    Sketcher.Constraint("Tangent", 2, 2, 3, 1),
    Sketcher.Constraint("Tangent", 3, 2, 4, 1),
    Sketcher.Constraint("Tangent", 4, 2, 5, 1),
    Sketcher.Constraint("Coincident", 5, 2, 0, 1),
    Sketcher.Constraint("Coincident", 6, 2, 7, 1),
    Sketcher.Constraint("Tangent", 7, 2, 8, 1),
    Sketcher.Constraint("Tangent", 8, 2, 9, 1),
    Sketcher.Constraint("Tangent", 9, 2, 10, 1),
    Sketcher.Constraint("Tangent", 10, 2, 11, 1),
    Sketcher.Constraint("Tangent", 11, 2, 12, 1),
    Sketcher.Constraint("Tangent", 12, 2, 13, 2),
    Sketcher.Constraint("Tangent", 13, 1, 14, 1),
    Sketcher.Constraint("Coincident", 14, 2, 6, 1),
    Sketcher.Constraint("Vertical", 0),
    Sketcher.Constraint("Horizontal", 1),
    Sketcher.Constraint("Vertical", 3),
    Sketcher.Constraint("Horizontal", 5),
    Sketcher.Constraint("Vertical", 6),
    Sketcher.Constraint("Vertical", 10),
    Sketcher.Constraint("Horizontal", 14),
    Sketcher.Constraint("Equal", 2, 4),
    Sketcher.Constraint("Equal", 7, 9),
    Sketcher.Constraint("Equal", 9, 13),
    Sketcher.Constraint("PointOnObject", 9, 2, -2),
    Sketcher.Constraint("Horizontal", 1, 2, 13, 1),
    Sketcher.Constraint("Equal", 5, 3),
    Sketcher.Constraint("Radius", 2, Q("1 mm")),
    Sketcher.Constraint("Radius", 11, Q("2 mm")),
    Sketcher.Constraint("DistanceX", 1, 1, 1, 2, Q("6 mm")),
    Sketcher.Constraint("Radius", 7, Q("2.54 mm")),
    Sketcher.Constraint("DistanceX", -1, 1, 2, 3, Q("33 mm")),
    Sketcher.Constraint("DistanceY", 2, 3, -1, 1, Q("1 mm")),
    Sketcher.Constraint("DistanceX", -1, 1, 6, 2, Q("10 mm")),
    Sketcher.Constraint("DistanceY", 13, 3, 7, 3, Q("8 mm")),
    Sketcher.Constraint("Distance", 12, Q("6.508302 mm")),
    Sketcher.Constraint("DistanceY", 6, 1, 6, 2, Q("7.997921 mm")),
    Sketcher.Constraint("DistanceY", 10, 2, 10, 1, Q("0.692982 mm")),
    Sketcher.Constraint("Distance", 8, Q("9.48419 mm")),
])
pad2 = body.newObject("PartDesign::Pad", "Pad001")
pad2.Profile = sketch7
pad2.Length = 1.4
pad2.Reversed = True
doc.recompute()

datumplane = body.newObject("PartDesign::Plane", "DatumPlane")
datumplane.AttachmentSupport = (doc.getObject("XZ_Plane"), [""])
datumplane.MapMode = "FlatFace"
datumplane.AttachmentOffset = App.Placement(Vector(0, 0, -17), App.Rotation())
mirrored = body.newObject("PartDesign::Mirrored", "Mirrored")
mirrored.Originals = [pad2]
mirrored.MirrorPlane = (datumplane, [""])
body.Tip = mirrored

doc.recompute()
